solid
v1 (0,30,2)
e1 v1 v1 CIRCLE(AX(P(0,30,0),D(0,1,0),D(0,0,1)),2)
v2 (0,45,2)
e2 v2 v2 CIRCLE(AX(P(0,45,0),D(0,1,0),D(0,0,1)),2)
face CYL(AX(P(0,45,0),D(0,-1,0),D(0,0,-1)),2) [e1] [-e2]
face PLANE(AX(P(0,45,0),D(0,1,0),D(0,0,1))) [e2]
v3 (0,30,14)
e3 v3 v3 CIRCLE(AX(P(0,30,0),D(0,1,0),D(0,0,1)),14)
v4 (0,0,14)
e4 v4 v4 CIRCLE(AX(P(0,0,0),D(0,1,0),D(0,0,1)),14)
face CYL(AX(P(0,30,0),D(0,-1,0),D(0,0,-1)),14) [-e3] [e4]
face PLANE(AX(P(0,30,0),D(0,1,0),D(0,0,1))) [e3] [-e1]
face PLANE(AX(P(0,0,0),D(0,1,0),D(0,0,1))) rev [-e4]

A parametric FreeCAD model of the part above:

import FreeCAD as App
import Part
import Sketcher

V = App.Vector
Q = App.Units.Quantity

doc = App.newDocument("Part")
body = doc.addObject("PartDesign::Body", "Body")

sketch1 = body.newObject("Sketcher::SketchObject", "Sketch")
sketch1.AttachmentSupport = (doc.getObject("XZ_Plane"), [""])
sketch1.MapMode = "FlatFace"
sketch1.addGeometry(Part.Circle(V(0, 0, 0), V(0, 0, 1), 14), False)
sketch1.addConstraint([
    Sketcher.Constraint("Coincident", 0, 3, -1, 1),
    Sketcher.Constraint("Diameter", 0, Q("28 mm")),
])
pad1 = body.newObject("PartDesign::Pad", "Pad")
pad1.Profile = sketch1
pad1.Length = 30
pad1.Reversed = True

sketch2 = body.newObject("Sketcher::SketchObject", "Sketch001")
sketch2.AttachmentSupport = (doc.getObject("XZ_Plane"), [""])
sketch2.MapMode = "FlatFace"
sketch2.AttachmentOffset = App.Placement(V(0, 0, -30), App.Rotation())
sketch2.addGeometry(Part.Circle(V(0, 0, 0), V(0, 0, 1), 2), False)
sketch2.addConstraint([
    Sketcher.Constraint("Coincident", 0, 3, -1, 1),
    Sketcher.Constraint("Diameter", 0, Q("4 mm")),
])
pad2 = body.newObject("PartDesign::Pad", "Pad001")
pad2.Profile = sketch2
pad2.Length = 15
pad2.Reversed = True

doc.recompute()
